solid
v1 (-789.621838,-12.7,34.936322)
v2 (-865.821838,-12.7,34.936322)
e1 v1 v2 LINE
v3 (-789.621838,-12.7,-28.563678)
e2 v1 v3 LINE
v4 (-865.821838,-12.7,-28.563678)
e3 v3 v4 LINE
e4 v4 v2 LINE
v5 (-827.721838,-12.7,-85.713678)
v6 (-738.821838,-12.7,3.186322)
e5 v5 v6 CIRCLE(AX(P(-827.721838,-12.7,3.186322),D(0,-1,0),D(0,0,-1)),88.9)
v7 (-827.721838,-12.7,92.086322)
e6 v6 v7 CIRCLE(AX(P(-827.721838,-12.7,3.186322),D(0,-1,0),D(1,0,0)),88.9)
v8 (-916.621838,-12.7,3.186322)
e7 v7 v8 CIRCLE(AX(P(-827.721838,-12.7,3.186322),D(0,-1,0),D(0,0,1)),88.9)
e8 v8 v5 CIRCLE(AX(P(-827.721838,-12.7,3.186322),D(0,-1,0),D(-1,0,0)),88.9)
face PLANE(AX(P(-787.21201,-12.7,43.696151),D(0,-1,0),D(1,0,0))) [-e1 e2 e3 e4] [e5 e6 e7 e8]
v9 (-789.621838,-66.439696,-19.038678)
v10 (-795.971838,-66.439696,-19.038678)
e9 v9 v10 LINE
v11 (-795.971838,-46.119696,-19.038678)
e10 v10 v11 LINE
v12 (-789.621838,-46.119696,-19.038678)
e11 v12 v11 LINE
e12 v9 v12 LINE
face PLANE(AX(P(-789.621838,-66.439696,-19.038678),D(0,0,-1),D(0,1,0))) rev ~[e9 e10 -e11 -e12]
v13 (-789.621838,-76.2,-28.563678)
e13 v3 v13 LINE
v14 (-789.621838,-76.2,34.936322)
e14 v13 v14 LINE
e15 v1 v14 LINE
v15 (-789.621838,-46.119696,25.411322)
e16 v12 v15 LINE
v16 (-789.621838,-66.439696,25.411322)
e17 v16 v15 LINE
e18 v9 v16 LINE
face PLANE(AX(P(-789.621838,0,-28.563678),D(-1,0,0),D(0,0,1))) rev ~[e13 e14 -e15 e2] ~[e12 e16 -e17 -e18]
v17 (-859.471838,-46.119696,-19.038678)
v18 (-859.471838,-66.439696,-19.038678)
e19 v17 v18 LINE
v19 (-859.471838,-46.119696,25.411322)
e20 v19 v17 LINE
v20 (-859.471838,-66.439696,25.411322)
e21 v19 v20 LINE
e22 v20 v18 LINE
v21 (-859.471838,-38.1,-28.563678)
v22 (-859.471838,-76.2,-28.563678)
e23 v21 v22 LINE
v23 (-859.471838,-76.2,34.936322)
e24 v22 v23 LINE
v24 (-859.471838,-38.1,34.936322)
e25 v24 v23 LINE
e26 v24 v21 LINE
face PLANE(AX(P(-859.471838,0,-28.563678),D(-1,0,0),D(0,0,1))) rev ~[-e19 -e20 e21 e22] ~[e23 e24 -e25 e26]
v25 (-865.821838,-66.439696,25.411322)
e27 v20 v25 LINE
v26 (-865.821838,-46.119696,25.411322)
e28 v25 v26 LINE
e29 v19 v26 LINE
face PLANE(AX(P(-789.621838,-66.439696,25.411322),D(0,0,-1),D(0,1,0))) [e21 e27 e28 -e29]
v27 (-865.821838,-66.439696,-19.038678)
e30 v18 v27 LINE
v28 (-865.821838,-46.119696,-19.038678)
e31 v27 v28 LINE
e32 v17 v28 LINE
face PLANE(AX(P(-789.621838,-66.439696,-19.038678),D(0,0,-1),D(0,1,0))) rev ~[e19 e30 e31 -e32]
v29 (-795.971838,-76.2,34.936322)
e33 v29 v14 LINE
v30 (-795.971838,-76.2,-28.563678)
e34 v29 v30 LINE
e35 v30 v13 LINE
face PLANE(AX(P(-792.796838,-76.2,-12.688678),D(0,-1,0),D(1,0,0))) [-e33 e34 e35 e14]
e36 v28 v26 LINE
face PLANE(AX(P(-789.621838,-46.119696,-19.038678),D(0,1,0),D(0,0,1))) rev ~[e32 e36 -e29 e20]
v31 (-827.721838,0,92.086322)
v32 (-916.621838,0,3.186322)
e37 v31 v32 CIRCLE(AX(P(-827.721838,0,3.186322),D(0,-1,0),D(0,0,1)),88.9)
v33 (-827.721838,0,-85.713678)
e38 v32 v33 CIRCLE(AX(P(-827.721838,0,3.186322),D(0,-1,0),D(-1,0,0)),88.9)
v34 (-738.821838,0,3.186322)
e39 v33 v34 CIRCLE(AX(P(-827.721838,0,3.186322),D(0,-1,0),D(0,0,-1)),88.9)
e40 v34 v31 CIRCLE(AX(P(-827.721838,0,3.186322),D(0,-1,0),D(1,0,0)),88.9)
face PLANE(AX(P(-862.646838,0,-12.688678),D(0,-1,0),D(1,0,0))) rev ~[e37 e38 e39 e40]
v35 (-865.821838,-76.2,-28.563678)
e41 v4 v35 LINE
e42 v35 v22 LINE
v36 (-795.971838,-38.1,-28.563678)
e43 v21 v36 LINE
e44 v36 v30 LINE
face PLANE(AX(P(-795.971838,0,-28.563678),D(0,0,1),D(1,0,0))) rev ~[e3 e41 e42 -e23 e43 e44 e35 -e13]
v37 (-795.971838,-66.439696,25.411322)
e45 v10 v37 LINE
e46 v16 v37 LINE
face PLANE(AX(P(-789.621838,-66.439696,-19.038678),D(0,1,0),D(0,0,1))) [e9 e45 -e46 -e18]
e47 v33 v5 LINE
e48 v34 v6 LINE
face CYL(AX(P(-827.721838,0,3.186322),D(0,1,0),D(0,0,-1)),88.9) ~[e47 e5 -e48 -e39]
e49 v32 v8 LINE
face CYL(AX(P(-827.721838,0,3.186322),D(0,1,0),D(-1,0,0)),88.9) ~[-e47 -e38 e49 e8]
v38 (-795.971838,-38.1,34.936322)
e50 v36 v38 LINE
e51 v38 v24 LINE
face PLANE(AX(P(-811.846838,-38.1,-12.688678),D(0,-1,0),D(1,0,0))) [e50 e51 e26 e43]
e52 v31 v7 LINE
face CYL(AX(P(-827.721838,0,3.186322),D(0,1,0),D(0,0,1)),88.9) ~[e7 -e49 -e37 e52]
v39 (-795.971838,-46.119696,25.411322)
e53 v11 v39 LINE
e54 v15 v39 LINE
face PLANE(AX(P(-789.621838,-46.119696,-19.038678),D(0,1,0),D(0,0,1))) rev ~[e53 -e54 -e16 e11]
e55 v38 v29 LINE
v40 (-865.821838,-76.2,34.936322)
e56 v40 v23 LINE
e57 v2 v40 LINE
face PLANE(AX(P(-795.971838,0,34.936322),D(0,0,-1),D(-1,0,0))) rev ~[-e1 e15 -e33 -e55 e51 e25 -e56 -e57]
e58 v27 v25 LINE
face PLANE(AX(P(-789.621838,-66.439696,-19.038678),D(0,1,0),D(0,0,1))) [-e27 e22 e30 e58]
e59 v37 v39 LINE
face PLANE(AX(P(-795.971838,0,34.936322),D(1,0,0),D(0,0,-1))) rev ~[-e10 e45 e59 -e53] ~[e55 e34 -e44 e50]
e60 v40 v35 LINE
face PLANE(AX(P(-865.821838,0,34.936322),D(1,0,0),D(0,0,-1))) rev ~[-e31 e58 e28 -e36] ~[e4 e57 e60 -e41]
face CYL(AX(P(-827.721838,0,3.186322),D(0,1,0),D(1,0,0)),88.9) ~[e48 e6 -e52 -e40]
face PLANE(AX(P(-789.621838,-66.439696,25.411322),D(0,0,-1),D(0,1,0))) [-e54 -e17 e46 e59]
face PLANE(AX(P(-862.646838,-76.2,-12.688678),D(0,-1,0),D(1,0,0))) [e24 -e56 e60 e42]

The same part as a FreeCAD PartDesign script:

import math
import FreeCAD as App
import Part
import Sketcher

V = App.Vector
Q = App.Units.Quantity


def add_polygon(sketch, points):
    """Adds a closed chain of lines whose ends are joined by coincident constraints."""
    first, n = sketch.GeometryCount, len(points)
    for a, b in zip(points, points[1:] + points[:1]):
        sketch.addGeometry(Part.LineSegment(App.Vector(*a, 0), App.Vector(*b, 0)), False)
    for i in range(n):
        sketch.addConstraint(Sketcher.Constraint("Coincident", first + i, 2, first + (i + 1) % n, 1))

doc = App.newDocument("Part")
body = doc.addObject("PartDesign::Body", "Body")

sketch1 = body.newObject("Sketcher::SketchObject", "Sketch")
sketch1.AttachmentSupport = (doc.getObject("XZ_Plane"), [""])
sketch1.MapMode = "FlatFace"
sketch1.addGeometry(Part.ArcOfCircle(Part.Circle(V(-827.721838, 3.186322, 0), V(0, 0, 1), 88.9), math.radians(180), math.radians(270)), False)
sketch1.addGeometry(Part.ArcOfCircle(Part.Circle(V(-827.721838, 3.186322, 0), V(0, 0, 1), 88.9), math.radians(-90), math.radians(0)), False)
sketch1.addGeometry(Part.ArcOfCircle(Part.Circle(V(-827.721838, 3.186322, 0), V(0, 0, 1), 88.9), math.radians(0), math.radians(90)), False)
sketch1.addGeometry(Part.ArcOfCircle(Part.Circle(V(-827.721838, 3.186322, 0), V(0, 0, 1), 88.9), math.radians(90), math.radians(180)), False)
add_polygon(sketch1, [(-865.821838, -28.563678), (-865.821838, 34.936322), (-789.621838, 34.936322), (-789.621838, -28.563678)])
sketch1.addConstraint([
    Sketcher.Constraint("Tangent", 0, 2, 1, 1),
    Sketcher.Constraint("Tangent", 1, 2, 2, 1),
    Sketcher.Constraint("Tangent", 2, 2, 3, 1),
    Sketcher.Constraint("Tangent", 3, 2, 0, 1),
    Sketcher.Constraint("Vertical", 4),
    Sketcher.Constraint("Horizontal", 5),
    Sketcher.Constraint("Vertical", 6),
    Sketcher.Constraint("Horizontal", 7),
    Sketcher.Constraint("Equal", 0, 1),
    Sketcher.Constraint("Horizontal", 3, 3, 1, 2),
    Sketcher.Constraint("Horizontal", 1, 2, 3, 2),
    Sketcher.Constraint("Vertical", 3, 3, 0, 2),
    Sketcher.Constraint("Vertical", 0, 2, 2, 2),
    Sketcher.Constraint("Radius", 0, Q("3.5 in")),
    Sketcher.Constraint("DistanceX", 5, 1, 5, 2, Q("3 in")),
    Sketcher.Constraint("DistanceY", 4, 1, 4, 2, Q("2.5 in")),
    Sketcher.Constraint("DistanceX", 3, 2, 4, 2, Q("2 in")),
    Sketcher.Constraint("DistanceY", 0, 3, 4, 2, Q("1.25 in")),
    Sketcher.Constraint("DistanceX", 0, 3, -1, 1, Q("827.721838 mm")),
    Sketcher.Constraint("DistanceY", -1, 1, 0, 3, Q("3.186322 mm")),
])
pad1 = body.newObject("PartDesign::Pad", "Pad")
pad1.Profile = sketch1
pad1.Length = Q("0.5 in")

sketch2 = body.newObject("Sketcher::SketchObject", "Sketch001")
sketch2.AttachmentSupport = (doc.getObject("XZ_Plane"), [""])
sketch2.MapMode = "FlatFace"
add_polygon(sketch2, [(-865.821838, -28.563678), (-859.471838, -28.563678), (-859.471838, 34.936322), (-865.821838, 34.936322)])
add_polygon(sketch2, [(-795.971838, -28.563678), (-789.621838, -28.563678), (-789.621838, 34.936322), (-795.971838, 34.936322)])
sketch2.addConstraint([
    Sketcher.Constraint("Horizontal", 0),
    Sketcher.Constraint("Vertical", 1),
    Sketcher.Constraint("Horizontal", 2),
    Sketcher.Constraint("Vertical", 3),
    Sketcher.Constraint("Horizontal", 4),
    Sketcher.Constraint("Vertical", 5),
    Sketcher.Constraint("Horizontal", 6),
    Sketcher.Constraint("Vertical", 7),
    Sketcher.Constraint("Horizontal", 3, 2, 4, 2),
    Sketcher.Constraint("Horizontal", 2, 2, 5, 2),
    Sketcher.Constraint("Equal", 2, 4),
    Sketcher.Constraint("DistanceY", 1, 1, 1, 2, Q("2.5 in")),
    Sketcher.Constraint("DistanceX", 3, 2, 4, 2, Q("3 in")),
    Sketcher.Constraint("DistanceX", 0, 1, 0, 2, Q("0.25 in")),
    Sketcher.Constraint("DistanceX", 0, 2, -1, 1, Q("859.471838 mm")),
    Sketcher.Constraint("DistanceY", 0, 2, -1, 1, Q("28.563678 mm")),
])
pad2 = body.newObject("PartDesign::Pad", "Pad001")
pad2.Profile = sketch2
pad2.Length = Q("3 in")

sketch3 = body.newObject("Sketcher::SketchObject", "Sketch002")
sketch3.AttachmentSupport = (doc.getObject("XZ_Plane"), [""])
sketch3.MapMode = "FlatFace"
add_polygon(sketch3, [(-795.971838, -28.563678), (-795.971838, 34.936322), (-859.471838, 34.936322), (-859.471838, -28.563678)])
sketch3.addConstraint([
    Sketcher.Constraint("Vertical", 0),
    Sketcher.Constraint("Horizontal", 1),
    Sketcher.Constraint("Vertical", 2),
    Sketcher.Constraint("Horizontal", 3),
    Sketcher.Constraint("Equal", 3, 0),
    Sketcher.Constraint("DistanceX", 1, 2, 1, 1, Q("2.5 in")),
    Sketcher.Constraint("DistanceX", 0, 2, -1, 1, Q("795.971838 mm")),
    Sketcher.Constraint("DistanceY", -1, 1, 0, 2, Q("34.936322 mm")),
])
pad3 = body.newObject("PartDesign::Pad", "Pad002")
pad3.Profile = sketch3
pad3.Length = Q("1.5 in")

sketch4 = body.newObject("Sketcher::SketchObject", "Sketch003")
sketch4.AttachmentSupport = (doc.getObject("YZ_Plane"), [""])
sketch4.MapMode = "FlatFace"
sketch4.AttachmentOffset = App.Placement(V(0, 0, -789.621838), App.Rotation())
add_polygon(sketch4, [(-66.439696, 25.411322), (-66.439696, -19.038678), (-46.119696, -19.038678), (-46.119696, 25.411322)])
sketch4.addConstraint([
    Sketcher.Constraint("Vertical", 0),
    Sketcher.Constraint("Horizontal", 1),
    Sketcher.Constraint("Vertical", 2),
    Sketcher.Constraint("Horizontal", 3),
    Sketcher.Constraint("DistanceX", 1, 1, 1, 2, Q("0.8 in")),
    Sketcher.Constraint("DistanceY", 0, 2, 0, 1, Q("1.75 in")),
    Sketcher.Constraint("DistanceY", 0, 2, -1, 1, Q("19.038678 mm")),
    Sketcher.Constraint("DistanceX", 0, 2, -1, 1, Q("66.439696 mm")),
])
pocket1 = body.newObject("PartDesign::Pocket", "Pocket")
pocket1.Profile = sketch4
pocket1.Length = 200.02717

doc.recompute()
